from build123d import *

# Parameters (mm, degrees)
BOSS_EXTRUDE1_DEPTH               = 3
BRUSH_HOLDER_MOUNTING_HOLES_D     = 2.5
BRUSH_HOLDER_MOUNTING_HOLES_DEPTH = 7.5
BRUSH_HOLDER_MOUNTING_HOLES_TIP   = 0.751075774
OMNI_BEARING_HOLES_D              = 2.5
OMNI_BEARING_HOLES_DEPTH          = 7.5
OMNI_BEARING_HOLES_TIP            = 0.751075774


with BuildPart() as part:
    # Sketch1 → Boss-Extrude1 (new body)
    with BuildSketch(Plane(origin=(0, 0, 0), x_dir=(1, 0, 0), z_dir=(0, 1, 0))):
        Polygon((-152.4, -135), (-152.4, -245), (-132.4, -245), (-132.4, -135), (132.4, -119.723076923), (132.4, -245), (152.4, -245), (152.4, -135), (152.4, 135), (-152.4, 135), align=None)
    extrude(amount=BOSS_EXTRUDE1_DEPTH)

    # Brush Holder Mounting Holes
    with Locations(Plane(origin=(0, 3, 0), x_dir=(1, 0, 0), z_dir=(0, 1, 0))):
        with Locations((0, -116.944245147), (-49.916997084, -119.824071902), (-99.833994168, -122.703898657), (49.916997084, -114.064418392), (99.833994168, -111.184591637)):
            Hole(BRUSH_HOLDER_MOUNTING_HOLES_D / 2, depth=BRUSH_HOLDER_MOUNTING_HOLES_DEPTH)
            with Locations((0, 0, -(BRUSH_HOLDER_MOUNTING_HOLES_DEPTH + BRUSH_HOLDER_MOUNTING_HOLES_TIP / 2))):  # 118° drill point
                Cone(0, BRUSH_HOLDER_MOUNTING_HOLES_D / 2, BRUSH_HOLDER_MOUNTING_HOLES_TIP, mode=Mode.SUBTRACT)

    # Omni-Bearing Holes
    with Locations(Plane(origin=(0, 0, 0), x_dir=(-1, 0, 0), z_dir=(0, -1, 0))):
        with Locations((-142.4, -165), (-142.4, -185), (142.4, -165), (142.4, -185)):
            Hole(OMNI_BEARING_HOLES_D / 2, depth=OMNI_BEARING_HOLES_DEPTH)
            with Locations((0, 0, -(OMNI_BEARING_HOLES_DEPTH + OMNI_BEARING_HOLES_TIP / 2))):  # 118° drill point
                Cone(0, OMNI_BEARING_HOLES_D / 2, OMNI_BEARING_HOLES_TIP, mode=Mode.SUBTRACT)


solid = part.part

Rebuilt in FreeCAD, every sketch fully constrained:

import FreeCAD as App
import Part
import Sketcher

V = App.Vector
Q = App.Units.Quantity

doc = App.newDocument("Part")
body = doc.addObject("PartDesign::Body", "Body")

# Sketch on XZ plane
sketch1 = body.newObject("Sketcher::SketchObject", "Sketch")
sketch1.AttachmentSupport = (doc.getObject("XZ_Plane"), [""])
sketch1.MapMode = "FlatFace"
sketch1.addGeometry([
    Part.LineSegment(V(-152, 245, 0), V(-132, 245, 0)),  # 0
    Part.LineSegment(V(-132, 245, 0), V(-132, 135, 0)),  # 1
    Part.LineSegment(V(-132, 135, 0), V(132, 120, 0)),  # 2
    Part.LineSegment(V(132, 120, 0), V(132, 245, 0)),  # 3
    Part.LineSegment(V(132, 245, 0), V(152, 245, 0)),  # 4
    Part.LineSegment(V(152, 245, 0), V(152, -135, 0)),  # 5
    Part.LineSegment(V(152, -135, 0), V(-152, -135, 0)),  # 6
    Part.LineSegment(V(-152, -135, 0), V(-152, 245, 0)),  # 7
], False)
sketch1.addConstraint([
    Sketcher.Constraint("Coincident", 0, 2, 1, 1),
    Sketcher.Constraint("Coincident", 1, 2, 2, 1),
    Sketcher.Constraint("Coincident", 2, 2, 3, 1),
    Sketcher.Constraint("Coincident", 3, 2, 4, 1),
    Sketcher.Constraint("Coincident", 4, 2, 5, 1),
    Sketcher.Constraint("Coincident", 5, 2, 6, 1),
    Sketcher.Constraint("Coincident", 6, 2, 7, 1),
    Sketcher.Constraint("Coincident", 7, 2, 0, 1),
    Sketcher.Constraint("Horizontal", 0),
    Sketcher.Constraint("Vertical", 1),
    Sketcher.Constraint("Vertical", 3),
    Sketcher.Constraint("Horizontal", 4),
    Sketcher.Constraint("Vertical", 5),
    Sketcher.Constraint("Horizontal", 6),
    Sketcher.Constraint("Vertical", 7),
    Sketcher.Constraint("Symmetric", 0, 2, 3, 2, -2),
    Sketcher.Constraint("Equal", 0, 4),
    Sketcher.Constraint("DistanceX", 0, 1, 0, 2, Q("20 mm")),
    Sketcher.Constraint("DistanceY", 1, 2, 1, 1, Q("110 mm")),
    Sketcher.Constraint("DistanceY", 5, 2, 5, 1, Q("380 mm")),
    Sketcher.Constraint("DistanceX", 6, 2, 6, 1, Q("304.8 mm")),
    Sketcher.Constraint("DistanceY", -1, 1, 0, 2, Q("245 mm")),
    Sketcher.Constraint("DistanceY", 3, 1, 3, 2, Q("125.276923 mm")),
])
pad1 = body.newObject("PartDesign::Pad", "Pad")
pad1.Profile = sketch1
pad1.Length = 3
pad1.Reversed = True

# Sketch on XZ plane
sketch2 = body.newObject("Sketcher::SketchObject", "Sketch001")
sketch2.AttachmentSupport = (doc.getObject("XZ_Plane"), [""])
sketch2.MapMode = "FlatFace"
sketch2.AttachmentOffset = App.Placement(V(0, 0, -3), App.Rotation())
sketch2.addGeometry([
    Part.Circle(V(0, 116.9, 0), V(0, 0, 1), 1.2),  # 0
    Part.Circle(V(-49.9, 119.8, 0), V(0, 0, 1), 1.2),  # 1
    Part.Circle(V(-99.8, 122.7, 0), V(0, 0, 1), 1.2),  # 2
    Part.Circle(V(49.9, 114.1, 0), V(0, 0, 1), 1.2),  # 3
    Part.Circle(V(99.8, 111.2, 0), V(0, 0, 1), 1.2),  # 4
], False)
sketch2.addConstraint([
    Sketcher.Constraint("Equal", 0, 1),
    Sketcher.Constraint("Equal", 1, 2),
    Sketcher.Constraint("Equal", 2, 3),
    Sketcher.Constraint("Equal", 3, 4),
    Sketcher.Constraint("PointOnObject", 0, 3, -2),
    Sketcher.Constraint("Diameter", 0, Q("2.5 mm")),
    Sketcher.Constraint("DistanceY", -1, 1, 2, 3, Q("122.703899 mm")),
    Sketcher.Constraint("DistanceY", -1, 1, 1, 3, Q("119.824072 mm")),
    Sketcher.Constraint("DistanceY", -1, 1, 3, 3, Q("114.064418 mm")),
    Sketcher.Constraint("DistanceY", -1, 1, 4, 3, Q("111.184592 mm")),
    Sketcher.Constraint("DistanceX", 2, 3, 3, 3, Q("149.750991 mm")),
    Sketcher.Constraint("DistanceX", 1, 3, 4, 3, Q("149.750991 mm")),
    Sketcher.Constraint("DistanceX", 2, 3, 4, 3, Q("199.667988 mm")),
    Sketcher.Constraint("DistanceY", -1, 1, 0, 3, Q("116.944245 mm")),
    Sketcher.Constraint("DistanceX", 1, 3, -1, 1, Q("49.916997 mm")),
])
doc.recompute()
hole = body.newObject("PartDesign::Hole", "Hole")
hole.Profile = sketch2
hole.ThreadType = "None"
hole.Diameter = 2.5
hole.DepthType = "Dimension"
hole.Depth = 7.5
hole.DrillPoint = "Angled"
hole.DrillPointAngle = 118
hole.Reversed = True

# Sketch on XZ plane
sketch3 = body.newObject("Sketcher::SketchObject", "Sketch002")
sketch3.AttachmentSupport = (doc.getObject("XZ_Plane"), [""])
sketch3.MapMode = "FlatFace"
sketch3.addGeometry([
    Part.Circle(V(142.4, 165, 0), V(0, 0, 1), 1.2),
    Part.Circle(V(142.4, 185, 0), V(0, 0, 1), 1.2),
    Part.Circle(V(-142.4, 165, 0), V(0, 0, 1), 1.2),
    Part.Circle(V(-142.4, 185, 0), V(0, 0, 1), 1.2),
], False)
sketch3.addConstraint([
    Sketcher.Constraint("Equal", 0, 1),
    Sketcher.Constraint("Equal", 1, 2),
    Sketcher.Constraint("Equal", 2, 3),
    Sketcher.Constraint("Symmetric", 0, 3, 2, 3, -2),
    Sketcher.Constraint("Symmetric", 1, 3, 3, 3, -2),
    Sketcher.Constraint("Vertical", 0, 3, 1, 3),
    Sketcher.Constraint("Diameter", 0, Q("2.5 mm")),
    Sketcher.Constraint("DistanceY", -1, 1, 0, 3, Q("165 mm")),
    Sketcher.Constraint("DistanceY", -1, 1, 1, 3, Q("185 mm")),
    Sketcher.Constraint("DistanceX", -1, 1, 0, 3, Q("142.4 mm")),
])
doc.recompute()
hole2 = body.newObject("PartDesign::Hole", "Hole001")
hole2.Profile = sketch3
hole2.ThreadType = "None"
hole2.Diameter = 2.5
hole2.DepthType = "Dimension"
hole2.Depth = 7.5
hole2.DrillPoint = "Angled"
hole2.DrillPointAngle = 118

doc.recompute()
